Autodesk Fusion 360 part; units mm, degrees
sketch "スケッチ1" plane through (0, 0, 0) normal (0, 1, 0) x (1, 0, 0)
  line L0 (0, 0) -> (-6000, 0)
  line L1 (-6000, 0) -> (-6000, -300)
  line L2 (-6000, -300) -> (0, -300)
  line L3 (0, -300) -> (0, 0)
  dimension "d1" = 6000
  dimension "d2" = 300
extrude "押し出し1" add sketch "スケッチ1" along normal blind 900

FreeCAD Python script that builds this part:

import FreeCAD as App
import Part
import Sketcher
Q = App.Units.Quantity

doc = App.newDocument("Part")
body = doc.addObject("PartDesign::Body", "Body")

# Sketch on XZ plane
sketch1 = doc.addObject("Sketcher::SketchObject", "Sketch")
body.addObject(sketch1)
sketch1.AttachmentSupport = (doc.XZ_Plane, [""])
sketch1.MapMode = "FlatFace"
sketch1.addGeometry([
    Part.LineSegment(App.Vector(0, 300, 0), App.Vector(0, 0, 0)),
    Part.LineSegment(App.Vector(0, 0, 0), App.Vector(-6000, 0, 0)),
    Part.LineSegment(App.Vector(-6000, 0, 0), App.Vector(-6000, 300, 0)),
    Part.LineSegment(App.Vector(-6000, 300, 0), App.Vector(0, 300, 0)),
], False)
sketch1.addConstraint([
    Sketcher.Constraint("Coincident", 0, 2, 1, 1),
    Sketcher.Constraint("Coincident", 1, 2, 2, 1),
    Sketcher.Constraint("Coincident", 2, 2, 3, 1),
    Sketcher.Constraint("Coincident", 3, 2, 0, 1),
    Sketcher.Constraint("Vertical", 0),
    Sketcher.Constraint("Horizontal", 1),
    Sketcher.Constraint("Vertical", 2),
    Sketcher.Constraint("Horizontal", 3),
    Sketcher.Constraint("Coincident", 0, 2, -1, 1),
    Sketcher.Constraint("DistanceX", 1, 2, 1, 1, Q("6000 mm")),
    Sketcher.Constraint("DistanceY", 0, 2, 0, 1, Q("300 mm")),
])
pad1 = doc.addObject("PartDesign::Pad", "Pad")
body.addObject(pad1)
pad1.Profile = sketch1
pad1.Length = 900
pad1.Reversed = True

doc.recompute()
